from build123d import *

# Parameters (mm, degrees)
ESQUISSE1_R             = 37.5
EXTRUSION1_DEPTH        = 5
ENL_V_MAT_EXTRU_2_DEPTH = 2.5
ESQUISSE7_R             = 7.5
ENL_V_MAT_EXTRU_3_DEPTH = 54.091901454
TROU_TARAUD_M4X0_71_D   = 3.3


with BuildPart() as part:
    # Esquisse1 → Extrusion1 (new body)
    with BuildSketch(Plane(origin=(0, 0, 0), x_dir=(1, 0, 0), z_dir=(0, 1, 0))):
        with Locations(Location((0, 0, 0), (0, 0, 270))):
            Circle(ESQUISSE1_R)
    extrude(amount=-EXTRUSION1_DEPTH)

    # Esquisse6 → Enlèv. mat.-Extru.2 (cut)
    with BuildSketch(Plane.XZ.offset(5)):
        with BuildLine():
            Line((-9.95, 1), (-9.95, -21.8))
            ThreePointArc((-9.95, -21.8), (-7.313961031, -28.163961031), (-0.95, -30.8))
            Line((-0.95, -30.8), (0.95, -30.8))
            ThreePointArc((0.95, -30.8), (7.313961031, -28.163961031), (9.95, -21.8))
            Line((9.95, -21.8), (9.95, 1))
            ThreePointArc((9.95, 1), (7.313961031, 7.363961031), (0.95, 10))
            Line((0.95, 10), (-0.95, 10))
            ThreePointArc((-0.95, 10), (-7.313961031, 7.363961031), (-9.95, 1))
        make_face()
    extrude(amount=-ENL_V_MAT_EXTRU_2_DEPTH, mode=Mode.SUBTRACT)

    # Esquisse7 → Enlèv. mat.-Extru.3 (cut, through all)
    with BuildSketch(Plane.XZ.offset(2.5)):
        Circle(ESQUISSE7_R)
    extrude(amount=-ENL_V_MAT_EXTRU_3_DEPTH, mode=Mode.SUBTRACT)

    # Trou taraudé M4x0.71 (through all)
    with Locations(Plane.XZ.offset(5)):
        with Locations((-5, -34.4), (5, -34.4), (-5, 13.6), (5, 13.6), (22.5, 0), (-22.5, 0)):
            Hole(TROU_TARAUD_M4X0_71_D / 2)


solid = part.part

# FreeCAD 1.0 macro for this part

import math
import FreeCAD as App
import Part
import Sketcher
from FreeCAD import Vector
Q = App.Units.Quantity

doc = App.newDocument("Part")
body = doc.addObject("PartDesign::Body", "Body")

# Sketch on XZ plane
sketch1 = body.newObject("Sketcher::SketchObject", "Sketch")
sketch1.AttachmentSupport = (doc.getObject("XZ_Plane"), [""])
sketch1.MapMode = "FlatFace"
sketch1.addGeometry(Part.Circle(Vector(0, 0, 0), Vector(0, 0, 1), 38), False)
sketch1.addConstraint([
    Sketcher.Constraint("Coincident", 0, 3, -1, 1),
    Sketcher.Constraint("Diameter", 0, Q("75 mm")),
])
pad1 = body.newObject("PartDesign::Pad", "Pad")
pad1.Profile = sketch1
pad1.Length = 5

# Sketch on XZ plane
sketch2 = body.newObject("Sketcher::SketchObject", "Sketch001")
sketch2.AttachmentSupport = (doc.getObject("XZ_Plane"), [""])
sketch2.MapMode = "FlatFace"
sketch2.AttachmentOffset = App.Placement(Vector(0, 0, 5), App.Rotation())
sketch2.addGeometry([
    Part.LineSegment(Vector(-9.9, 1, 0), Vector(-9.9, -21.8, 0)),  # 0
    Part.ArcOfCircle(Part.Circle(Vector(-1, -21.8, 0), Vector(0, 0, 1), 9), math.radians(180), math.radians(270)),  # 1
    Part.LineSegment(Vector(-0.9, -30.8, 0), Vector(0.9, -30.8, 0)),  # 2
    Part.ArcOfCircle(Part.Circle(Vector(1, -21.8, 0), Vector(0, 0, 1), 9), math.radians(-90), math.radians(0)),  # 3
    Part.LineSegment(Vector(9.9, -21.8, 0), Vector(9.9, 1, 0)),  # 4
    Part.ArcOfCircle(Part.Circle(Vector(1, 1, 0), Vector(0, 0, 1), 9), math.radians(0), math.radians(90)),  # 5
    Part.LineSegment(Vector(0.9, 10, 0), Vector(-0.9, 10, 0)),  # 6
    Part.ArcOfCircle(Part.Circle(Vector(-1, 1, 0), Vector(0, 0, 1), 9), math.radians(90), math.radians(180)),  # 7
], False)
sketch2.addConstraint([
    Sketcher.Constraint("Tangent", 0, 2, 1, 1),
    Sketcher.Constraint("Tangent", 1, 2, 2, 1),
    Sketcher.Constraint("Tangent", 2, 2, 3, 1),
    Sketcher.Constraint("Tangent", 3, 2, 4, 1),
    Sketcher.Constraint("Tangent", 4, 2, 5, 1),
    Sketcher.Constraint("Tangent", 5, 2, 6, 1),
    Sketcher.Constraint("Tangent", 6, 2, 7, 1),
    Sketcher.Constraint("Tangent", 7, 2, 0, 1),
    Sketcher.Constraint("Vertical", 0),
    Sketcher.Constraint("Horizontal", 2),
    Sketcher.Constraint("Vertical", 4),
    Sketcher.Constraint("Horizontal", 6),
    Sketcher.Constraint("Equal", 1, 3),
    Sketcher.Constraint("Equal", 3, 5),
    Sketcher.Constraint("Equal", 5, 7),
    Sketcher.Constraint("Radius", 1, Q("9 mm")),
    Sketcher.Constraint("DistanceX", 2, 1, 2, 2, Q("1.9 mm")),
    Sketcher.Constraint("DistanceY", 0, 2, 0, 1, Q("22.8 mm")),
    Sketcher.Constraint("DistanceY", -1, 1, 5, 3, Q("1 mm")),
    Sketcher.Constraint("DistanceX", 1, 3, -1, 1, Q("0.95 mm")),
])
pocket1 = body.newObject("PartDesign::Pocket", "Pocket")
pocket1.Profile = sketch2
pocket1.Length = 2.5

# Sketch on XZ plane
sketch3 = body.newObject("Sketcher::SketchObject", "Sketch002")
sketch3.AttachmentSupport = (doc.getObject("XZ_Plane"), [""])
sketch3.MapMode = "FlatFace"
sketch3.AttachmentOffset = App.Placement(Vector(0, 0, 2.5), App.Rotation())
sketch3.addGeometry(Part.Circle(Vector(0, 0, 0), Vector(0, 0, 1), 8), False)
sketch3.addConstraint([
    Sketcher.Constraint("Coincident", 0, 3, -1, 1),
    Sketcher.Constraint("Diameter", 0, Q("15 mm")),
])
pocket2 = body.newObject("PartDesign::Pocket", "Pocket001")
pocket2.Profile = sketch3
pocket2.Type = "ThroughAll"

# Sketch on XZ plane
sketch4 = body.newObject("Sketcher::SketchObject", "Sketch003")
sketch4.AttachmentSupport = (doc.getObject("XZ_Plane"), [""])
sketch4.MapMode = "FlatFace"
sketch4.AttachmentOffset = App.Placement(Vector(0, 0, 5), App.Rotation())
sketch4.addGeometry([
    Part.Circle(Vector(-5, -34.4, 0), Vector(0, 0, 1), 1.6),  # 0
    Part.Circle(Vector(5, -34.4, 0), Vector(0, 0, 1), 1.6),  # 1
    Part.Circle(Vector(-5, 13.6, 0), Vector(0, 0, 1), 1.6),  # 2
    Part.Circle(Vector(5, 13.6, 0), Vector(0, 0, 1), 1.6),  # 3
    Part.Circle(Vector(22.5, 0, 0), Vector(0, 0, 1), 1.6),  # 4
    Part.Circle(Vector(-22.5, 0, 0), Vector(0, 0, 1), 1.6),  # 5
], False)
sketch4.addConstraint([
    Sketcher.Constraint("Equal", 0, 1),
    Sketcher.Constraint("Equal", 1, 2),
    Sketcher.Constraint("Equal", 2, 3),
    Sketcher.Constraint("Equal", 3, 4),
    Sketcher.Constraint("Equal", 4, 5),
    Sketcher.Constraint("Symmetric", 4, 3, 5, 3, -1, 1),
    Sketcher.Constraint("Symmetric", 0, 3, 1, 3, -2),
    Sketcher.Constraint("Symmetric", 2, 3, 3, 3, -2),
    Sketcher.Constraint("PointOnObject", 4, 3, -1),
    Sketcher.Constraint("Vertical", 0, 3, 2, 3),
    Sketcher.Constraint("Diameter", 0, Q("3.3 mm")),
    Sketcher.Constraint("DistanceX", 0, 3, -1, 1, Q("5 mm")),
    Sketcher.Constraint("DistanceY", 0, 3, 2, 3, Q("48 mm")),
    Sketcher.Constraint("DistanceX", 5, 3, 4, 3, Q("45 mm")),
    Sketcher.Constraint("DistanceY", 0, 3, -1, 1, Q("34.4 mm")),
])
doc.recompute()
hole = body.newObject("PartDesign::Hole", "Hole")
hole.Profile = sketch4
hole.ThreadType = "None"
hole.Diameter = 3.3
hole.DepthType = "ThroughAll"

doc.recompute()
